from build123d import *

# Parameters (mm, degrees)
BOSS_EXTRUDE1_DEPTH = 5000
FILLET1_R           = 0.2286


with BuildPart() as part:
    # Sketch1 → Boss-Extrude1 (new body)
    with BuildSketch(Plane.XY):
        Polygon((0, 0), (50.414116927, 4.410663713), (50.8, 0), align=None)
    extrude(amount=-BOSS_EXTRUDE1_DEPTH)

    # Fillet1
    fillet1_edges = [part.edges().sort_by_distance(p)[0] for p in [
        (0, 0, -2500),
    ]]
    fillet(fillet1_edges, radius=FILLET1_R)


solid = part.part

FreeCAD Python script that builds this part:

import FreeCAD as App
import Part
import Sketcher
from FreeCAD import Vector
Q = App.Units.Quantity


def edges_at(feature, points):
    """Names of the edges that pass closest to the given points."""
    edges = feature.Shape.Edges
    near = lambda p: min(range(len(edges)), key=lambda i: edges[i].distToShape(Part.Vertex(*p))[0])
    return sorted({f"Edge{near(p) + 1}" for p in points})

doc = App.newDocument("Part")
params = doc.addObject("Spreadsheet::Sheet", "Params")
for row, (alias, value) in enumerate([
    ("sketch1_width", "2 in"),
    ("pad1_length", "5000 mm"),
    ("fillet_radius", "0.009 in"),
], start=1):
    params.set(f"A{row}", alias)
    params.set(f"B{row}", "=" + value)
    params.setAlias(f"B{row}", alias)

body = doc.addObject("PartDesign::Body", "Body")

# Sketch on XY plane
sketch1 = doc.addObject("Sketcher::SketchObject", "Sketch")
body.addObject(sketch1)
sketch1.AttachmentSupport = (doc.XY_Plane, [""])
sketch1.MapMode = "FlatFace"
sketch1.addGeometry([
    Part.LineSegment(Vector(50.4, 4.4, 0), Vector(0, 0, 0)),
    Part.LineSegment(Vector(0, 0, 0), Vector(50.8, 0, 0)),
    Part.LineSegment(Vector(50.8, 0, 0), Vector(50.4, 4.4, 0)),
], False)
sketch1.addConstraint([
    Sketcher.Constraint("Coincident", 0, 2, 1, 1),
    Sketcher.Constraint("Coincident", 1, 2, 2, 1),
    Sketcher.Constraint("Coincident", 2, 2, 0, 1),
    Sketcher.Constraint("Horizontal", 1),
    Sketcher.Constraint("Coincident", 0, 2, -1, 1),
    Sketcher.Constraint("Perpendicular", 0, 2),
    Sketcher.Constraint("DistanceX", 1, 1, 1, 2, Q("2 in")),
    Sketcher.Constraint("Angle", 0, Q("-175 deg")),
])
sketch1.setExpression("Constraints[6]", "Params.sketch1_width")
pad1 = doc.addObject("PartDesign::Pad", "Pad")
body.addObject(pad1)
pad1.Profile = sketch1
pad1.setExpression("Length", "Params.pad1_length")
pad1.Reversed = True
doc.recompute()

fillet = doc.addObject("PartDesign::Fillet", "Fillet")
body.addObject(fillet)
fillet.Base = (pad1, edges_at(pad1, [(0, 0, -2500)]))
fillet.setExpression("Radius", "Params.fillet_radius")

doc.recompute()
